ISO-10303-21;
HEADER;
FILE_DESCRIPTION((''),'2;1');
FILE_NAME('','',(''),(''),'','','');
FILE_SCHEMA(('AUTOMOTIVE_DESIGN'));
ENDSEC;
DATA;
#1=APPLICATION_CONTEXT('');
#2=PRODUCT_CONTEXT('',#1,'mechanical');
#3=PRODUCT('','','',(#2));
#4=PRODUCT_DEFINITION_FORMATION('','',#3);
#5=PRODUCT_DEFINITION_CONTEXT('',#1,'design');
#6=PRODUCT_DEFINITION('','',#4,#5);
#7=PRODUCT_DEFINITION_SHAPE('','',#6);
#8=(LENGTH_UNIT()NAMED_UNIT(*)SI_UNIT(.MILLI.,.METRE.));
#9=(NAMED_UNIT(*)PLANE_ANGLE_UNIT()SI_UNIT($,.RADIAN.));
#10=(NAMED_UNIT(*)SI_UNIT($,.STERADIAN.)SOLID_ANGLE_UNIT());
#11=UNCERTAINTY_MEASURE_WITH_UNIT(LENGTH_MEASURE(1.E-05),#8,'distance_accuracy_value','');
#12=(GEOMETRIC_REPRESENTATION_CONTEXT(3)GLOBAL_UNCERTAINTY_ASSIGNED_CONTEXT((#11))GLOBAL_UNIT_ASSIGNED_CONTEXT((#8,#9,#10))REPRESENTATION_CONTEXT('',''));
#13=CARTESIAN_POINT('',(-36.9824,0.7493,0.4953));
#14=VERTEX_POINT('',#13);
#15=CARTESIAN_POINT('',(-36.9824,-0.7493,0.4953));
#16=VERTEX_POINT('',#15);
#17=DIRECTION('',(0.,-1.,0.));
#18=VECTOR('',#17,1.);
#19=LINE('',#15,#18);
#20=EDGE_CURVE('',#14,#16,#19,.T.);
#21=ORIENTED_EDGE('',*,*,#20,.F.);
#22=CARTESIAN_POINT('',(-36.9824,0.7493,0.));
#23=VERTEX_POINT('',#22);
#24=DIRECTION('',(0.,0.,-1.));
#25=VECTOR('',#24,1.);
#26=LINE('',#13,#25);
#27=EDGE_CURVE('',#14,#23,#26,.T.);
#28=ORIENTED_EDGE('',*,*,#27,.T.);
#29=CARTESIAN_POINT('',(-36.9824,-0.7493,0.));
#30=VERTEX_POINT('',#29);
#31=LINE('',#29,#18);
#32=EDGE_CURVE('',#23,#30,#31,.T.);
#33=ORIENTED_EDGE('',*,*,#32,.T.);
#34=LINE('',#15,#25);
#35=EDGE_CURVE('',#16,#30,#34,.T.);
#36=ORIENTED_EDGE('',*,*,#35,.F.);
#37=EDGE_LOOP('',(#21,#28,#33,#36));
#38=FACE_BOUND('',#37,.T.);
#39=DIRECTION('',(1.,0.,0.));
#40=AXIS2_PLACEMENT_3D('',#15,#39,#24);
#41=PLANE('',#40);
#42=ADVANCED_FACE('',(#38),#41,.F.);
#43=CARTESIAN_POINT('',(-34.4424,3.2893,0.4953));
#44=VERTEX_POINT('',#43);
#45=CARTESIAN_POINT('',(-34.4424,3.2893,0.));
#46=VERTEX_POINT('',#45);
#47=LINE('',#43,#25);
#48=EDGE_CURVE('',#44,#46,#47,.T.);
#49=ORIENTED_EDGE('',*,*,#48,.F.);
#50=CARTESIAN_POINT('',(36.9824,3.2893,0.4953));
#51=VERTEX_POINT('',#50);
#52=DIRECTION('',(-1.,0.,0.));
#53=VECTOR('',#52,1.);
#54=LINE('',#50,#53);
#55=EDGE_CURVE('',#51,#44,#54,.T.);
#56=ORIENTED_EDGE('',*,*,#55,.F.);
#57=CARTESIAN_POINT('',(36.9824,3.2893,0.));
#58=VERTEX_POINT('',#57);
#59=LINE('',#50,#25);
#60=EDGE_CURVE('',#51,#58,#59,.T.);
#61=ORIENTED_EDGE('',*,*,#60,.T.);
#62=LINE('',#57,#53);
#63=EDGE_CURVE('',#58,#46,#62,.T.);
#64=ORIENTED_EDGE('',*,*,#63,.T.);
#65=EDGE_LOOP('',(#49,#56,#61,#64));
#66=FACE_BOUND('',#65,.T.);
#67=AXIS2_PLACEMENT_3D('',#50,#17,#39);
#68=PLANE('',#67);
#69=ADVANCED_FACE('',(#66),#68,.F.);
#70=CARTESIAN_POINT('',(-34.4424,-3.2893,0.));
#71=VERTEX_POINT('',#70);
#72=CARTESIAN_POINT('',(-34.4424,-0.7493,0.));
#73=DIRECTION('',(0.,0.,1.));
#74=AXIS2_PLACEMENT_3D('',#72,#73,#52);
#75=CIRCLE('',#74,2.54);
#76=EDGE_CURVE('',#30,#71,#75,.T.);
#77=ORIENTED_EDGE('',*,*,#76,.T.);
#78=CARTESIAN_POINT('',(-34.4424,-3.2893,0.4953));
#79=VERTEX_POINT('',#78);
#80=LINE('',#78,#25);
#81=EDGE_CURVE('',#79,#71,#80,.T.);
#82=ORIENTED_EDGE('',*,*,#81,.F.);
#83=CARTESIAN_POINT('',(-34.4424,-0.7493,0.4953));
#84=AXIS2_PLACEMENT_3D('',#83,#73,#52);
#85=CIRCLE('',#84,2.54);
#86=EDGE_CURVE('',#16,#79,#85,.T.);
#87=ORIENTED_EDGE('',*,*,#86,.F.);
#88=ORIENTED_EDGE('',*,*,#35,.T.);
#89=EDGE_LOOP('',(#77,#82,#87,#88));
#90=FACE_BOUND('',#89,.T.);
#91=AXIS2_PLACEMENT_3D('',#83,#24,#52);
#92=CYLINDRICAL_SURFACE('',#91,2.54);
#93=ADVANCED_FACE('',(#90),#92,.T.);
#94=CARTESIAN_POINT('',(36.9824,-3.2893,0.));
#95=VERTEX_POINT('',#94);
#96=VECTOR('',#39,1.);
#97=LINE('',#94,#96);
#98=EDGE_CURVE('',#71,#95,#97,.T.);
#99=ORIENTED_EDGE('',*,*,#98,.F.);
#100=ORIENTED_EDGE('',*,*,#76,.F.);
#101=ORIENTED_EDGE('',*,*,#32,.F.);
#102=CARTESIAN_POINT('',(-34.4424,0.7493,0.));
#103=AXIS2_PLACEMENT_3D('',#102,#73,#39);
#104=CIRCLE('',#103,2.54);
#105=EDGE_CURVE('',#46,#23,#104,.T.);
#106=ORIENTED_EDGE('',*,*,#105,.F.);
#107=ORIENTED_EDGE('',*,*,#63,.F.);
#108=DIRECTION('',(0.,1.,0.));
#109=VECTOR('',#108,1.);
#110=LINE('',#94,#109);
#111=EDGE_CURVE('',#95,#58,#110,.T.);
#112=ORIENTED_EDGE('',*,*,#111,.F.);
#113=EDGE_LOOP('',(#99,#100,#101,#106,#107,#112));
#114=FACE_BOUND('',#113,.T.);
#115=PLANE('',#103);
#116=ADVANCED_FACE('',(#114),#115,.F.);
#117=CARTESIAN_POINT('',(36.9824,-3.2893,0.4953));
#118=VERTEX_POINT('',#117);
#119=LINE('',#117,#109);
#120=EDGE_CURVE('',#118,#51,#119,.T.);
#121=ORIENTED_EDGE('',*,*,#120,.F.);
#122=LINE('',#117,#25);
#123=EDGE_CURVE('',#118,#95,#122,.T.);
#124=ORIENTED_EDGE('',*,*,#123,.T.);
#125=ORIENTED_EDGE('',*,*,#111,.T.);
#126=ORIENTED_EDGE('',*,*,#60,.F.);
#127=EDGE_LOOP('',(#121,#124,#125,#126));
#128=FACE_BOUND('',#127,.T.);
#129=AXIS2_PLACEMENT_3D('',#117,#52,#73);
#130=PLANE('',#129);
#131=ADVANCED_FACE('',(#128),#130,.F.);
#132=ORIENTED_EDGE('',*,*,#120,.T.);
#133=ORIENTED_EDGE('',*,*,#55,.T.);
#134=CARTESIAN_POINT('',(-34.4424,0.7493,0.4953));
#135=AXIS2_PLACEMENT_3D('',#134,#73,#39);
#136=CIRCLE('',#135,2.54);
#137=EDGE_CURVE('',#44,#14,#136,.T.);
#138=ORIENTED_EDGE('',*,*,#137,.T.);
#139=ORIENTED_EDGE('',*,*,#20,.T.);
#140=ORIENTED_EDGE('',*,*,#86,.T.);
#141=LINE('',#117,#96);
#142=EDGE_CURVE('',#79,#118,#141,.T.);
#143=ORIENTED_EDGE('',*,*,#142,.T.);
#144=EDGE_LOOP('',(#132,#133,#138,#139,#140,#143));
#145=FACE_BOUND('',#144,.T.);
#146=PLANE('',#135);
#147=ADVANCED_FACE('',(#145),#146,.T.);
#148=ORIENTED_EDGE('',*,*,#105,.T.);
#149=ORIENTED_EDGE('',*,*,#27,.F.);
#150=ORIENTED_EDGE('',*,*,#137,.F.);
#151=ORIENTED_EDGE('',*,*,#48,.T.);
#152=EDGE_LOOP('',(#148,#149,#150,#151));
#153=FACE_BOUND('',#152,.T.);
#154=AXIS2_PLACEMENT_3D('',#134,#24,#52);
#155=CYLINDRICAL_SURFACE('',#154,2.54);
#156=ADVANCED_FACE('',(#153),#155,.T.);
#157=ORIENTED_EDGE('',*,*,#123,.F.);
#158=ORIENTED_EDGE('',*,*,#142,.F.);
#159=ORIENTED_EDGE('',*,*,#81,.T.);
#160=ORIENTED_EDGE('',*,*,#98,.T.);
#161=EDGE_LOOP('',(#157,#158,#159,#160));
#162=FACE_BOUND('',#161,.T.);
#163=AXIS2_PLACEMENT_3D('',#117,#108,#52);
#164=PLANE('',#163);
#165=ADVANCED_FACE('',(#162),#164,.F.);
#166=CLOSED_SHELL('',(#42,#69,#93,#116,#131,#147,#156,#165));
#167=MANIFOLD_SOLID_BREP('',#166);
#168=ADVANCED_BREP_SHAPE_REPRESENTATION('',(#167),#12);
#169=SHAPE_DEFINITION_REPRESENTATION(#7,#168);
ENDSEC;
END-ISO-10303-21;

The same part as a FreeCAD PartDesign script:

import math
import FreeCAD as App
import Part
import Sketcher
Q = App.Units.Quantity

doc = App.newDocument("Part")
params = doc.addObject("Spreadsheet::Sheet", "Params")
for row, (alias, value) in enumerate([
    ("sketch1_radius", "0.1 in"),
    ("sketch1_width", "2.812 in"),
    ("sketch1_height", "0.259 in"),
    ("pad1_length", "0.0195 in"),
], start=1):
    params.set(f"A{row}", alias)
    params.set(f"B{row}", "=" + value)
    params.setAlias(f"B{row}", alias)

body = doc.addObject("PartDesign::Body", "Body")

sketch1 = body.newObject("Sketcher::SketchObject", "Sketch")
sketch1.AttachmentSupport = (doc.getObject("XY_Plane"), [""])
sketch1.MapMode = "FlatFace"
sketch1.addGeometry(Part.LineSegment(App.Vector(-34.4, -3.3, 0), App.Vector(37, -3.3, 0)), False)
sketch1.addGeometry(Part.LineSegment(App.Vector(37, -3.3, 0), App.Vector(37, 3.3, 0)), False)
sketch1.addGeometry(Part.LineSegment(App.Vector(37, 3.3, 0), App.Vector(-34.4, 3.3, 0)), False)
sketch1.addGeometry(Part.ArcOfCircle(Part.Circle(App.Vector(-34.4, 0.7, 0), App.Vector(0, 0, 1), 2.5), math.radians(90), math.radians(180)), False)
sketch1.addGeometry(Part.LineSegment(App.Vector(-37, 0.7, 0), App.Vector(-37, -0.7, 0)), False)
sketch1.addGeometry(Part.ArcOfCircle(Part.Circle(App.Vector(-34.4, -0.7, 0), App.Vector(0, 0, 1), 2.5), math.radians(-180), math.radians(-90)), False)
sketch1.addConstraint(Sketcher.Constraint("Coincident", 0, 2, 1, 1))
sketch1.addConstraint(Sketcher.Constraint("Coincident", 1, 2, 2, 1))
sketch1.addConstraint(Sketcher.Constraint("Tangent", 2, 2, 3, 1))
sketch1.addConstraint(Sketcher.Constraint("Tangent", 3, 2, 4, 1))
sketch1.addConstraint(Sketcher.Constraint("Tangent", 4, 2, 5, 1))
sketch1.addConstraint(Sketcher.Constraint("Tangent", 5, 2, 0, 1))
sketch1.addConstraint(Sketcher.Constraint("Horizontal", 0))
sketch1.addConstraint(Sketcher.Constraint("Vertical", 1))
sketch1.addConstraint(Sketcher.Constraint("Horizontal", 2))
sketch1.addConstraint(Sketcher.Constraint("Vertical", 4))
sketch1.addConstraint(Sketcher.Constraint("Equal", 3, 5))
sketch1.addConstraint(Sketcher.Constraint("Radius", 3, Q("0.1 in")))
sketch1.addConstraint(Sketcher.Constraint("DistanceX", 0, 1, 0, 2, Q("2.812 in")))
sketch1.addConstraint(Sketcher.Constraint("DistanceY", 1, 1, 1, 2, Q("0.259 in")))
sketch1.addConstraint(Sketcher.Constraint("DistanceX", 3, 3, -1, 1, Q("1.356 in")))
sketch1.addConstraint(Sketcher.Constraint("DistanceY", -1, 1, 3, 3, Q("0.0295 in")))
sketch1.setExpression("Constraints[11]", "Params.sketch1_radius")
sketch1.setExpression("Constraints[12]", "Params.sketch1_width")
sketch1.setExpression("Constraints[13]", "Params.sketch1_height")
pad1 = body.newObject("PartDesign::Pad", "Pad")
pad1.Profile = sketch1
pad1.setExpression("Length", "Params.pad1_length")

doc.recompute()
